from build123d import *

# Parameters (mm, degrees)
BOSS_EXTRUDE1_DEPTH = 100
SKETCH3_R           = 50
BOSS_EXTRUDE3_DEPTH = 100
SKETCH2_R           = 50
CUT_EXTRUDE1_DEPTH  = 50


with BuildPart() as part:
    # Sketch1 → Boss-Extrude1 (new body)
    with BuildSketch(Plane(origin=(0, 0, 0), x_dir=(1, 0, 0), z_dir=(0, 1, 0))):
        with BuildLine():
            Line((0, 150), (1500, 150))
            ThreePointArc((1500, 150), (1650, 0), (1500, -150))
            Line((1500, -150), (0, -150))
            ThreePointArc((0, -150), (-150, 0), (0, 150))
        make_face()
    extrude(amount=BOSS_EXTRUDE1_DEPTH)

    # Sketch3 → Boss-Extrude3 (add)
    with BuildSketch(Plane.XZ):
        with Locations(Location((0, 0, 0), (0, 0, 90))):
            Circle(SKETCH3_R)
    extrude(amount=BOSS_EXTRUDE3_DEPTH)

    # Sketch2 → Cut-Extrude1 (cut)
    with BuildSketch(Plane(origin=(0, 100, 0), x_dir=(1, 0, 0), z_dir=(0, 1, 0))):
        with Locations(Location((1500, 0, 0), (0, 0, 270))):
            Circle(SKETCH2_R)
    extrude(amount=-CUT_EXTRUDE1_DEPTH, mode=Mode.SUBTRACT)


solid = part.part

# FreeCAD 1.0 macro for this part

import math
import FreeCAD as App
import Part
import Sketcher

V = App.Vector

doc = App.newDocument("Part")
body = doc.addObject("PartDesign::Body", "Body")

# Sketch on XZ plane
sketch1 = body.newObject("Sketcher::SketchObject", "Sketch")
sketch1.AttachmentSupport = (doc.getObject("XZ_Plane"), [""])
sketch1.MapMode = "FlatFace"
sketch1.addGeometry([
    Part.LineSegment(V(1500, -150, 0), V(0, -150, 0)),
    Part.ArcOfCircle(Part.Circle(V(0, 0, 0), V(0, 0, 1), 150), math.radians(90), math.radians(270)),
    Part.LineSegment(V(0, 150, 0), V(1500, 150, 0)),
    Part.ArcOfCircle(Part.Circle(V(1500, 0, 0), V(0, 0, 1), 150), math.radians(-90), math.radians(90)),
], False)
sketch1.addConstraint([
    Sketcher.Constraint("Tangent", 0, 2, 1, 2),
    Sketcher.Constraint("Tangent", 1, 1, 2, 1),
    Sketcher.Constraint("Tangent", 2, 2, 3, 2),
    Sketcher.Constraint("Tangent", 3, 1, 0, 1),
    Sketcher.Constraint("Horizontal", 0),
    Sketcher.Constraint("Horizontal", 2),
    Sketcher.Constraint("Coincident", 1, 3, -1, 1),
    Sketcher.Constraint("Radius", 1, 150.0),
    Sketcher.Constraint("DistanceX", 0, 2, 0, 1, 1500.0),
])
pad1 = body.newObject("PartDesign::Pad", "Pad")
pad1.Profile = sketch1
pad1.Length = 100
pad1.Reversed = True

# Sketch on XZ plane
sketch2 = body.newObject("Sketcher::SketchObject", "Sketch001")
sketch2.AttachmentSupport = (doc.getObject("XZ_Plane"), [""])
sketch2.MapMode = "FlatFace"
sketch2.addGeometry(Part.Circle(V(0, 0, 0), V(0, 0, 1), 50), False)
sketch2.addConstraint([
    Sketcher.Constraint("Coincident", 0, 3, -1, 1),
    Sketcher.Constraint("Diameter", 0, 100.0),
])
pad2 = body.newObject("PartDesign::Pad", "Pad001")
pad2.Profile = sketch2
pad2.Length = 100

# Sketch on XZ plane
sketch3 = body.newObject("Sketcher::SketchObject", "Sketch002")
sketch3.AttachmentSupport = (doc.getObject("XZ_Plane"), [""])
sketch3.MapMode = "FlatFace"
sketch3.AttachmentOffset = App.Placement(V(0, 0, -100), App.Rotation())
sketch3.addGeometry(Part.Circle(V(1500, 0, 0), V(0, 0, 1), 50), False)
sketch3.addConstraint([
    Sketcher.Constraint("PointOnObject", 0, 3, -1),
    Sketcher.Constraint("Diameter", 0, 100.0),
    Sketcher.Constraint("DistanceX", -1, 1, 0, 3, 1500.0),
])
pocket1 = body.newObject("PartDesign::Pocket", "Pocket")
pocket1.Profile = sketch3
pocket1.Length = 50
pocket1.Reversed = True

doc.recompute()
